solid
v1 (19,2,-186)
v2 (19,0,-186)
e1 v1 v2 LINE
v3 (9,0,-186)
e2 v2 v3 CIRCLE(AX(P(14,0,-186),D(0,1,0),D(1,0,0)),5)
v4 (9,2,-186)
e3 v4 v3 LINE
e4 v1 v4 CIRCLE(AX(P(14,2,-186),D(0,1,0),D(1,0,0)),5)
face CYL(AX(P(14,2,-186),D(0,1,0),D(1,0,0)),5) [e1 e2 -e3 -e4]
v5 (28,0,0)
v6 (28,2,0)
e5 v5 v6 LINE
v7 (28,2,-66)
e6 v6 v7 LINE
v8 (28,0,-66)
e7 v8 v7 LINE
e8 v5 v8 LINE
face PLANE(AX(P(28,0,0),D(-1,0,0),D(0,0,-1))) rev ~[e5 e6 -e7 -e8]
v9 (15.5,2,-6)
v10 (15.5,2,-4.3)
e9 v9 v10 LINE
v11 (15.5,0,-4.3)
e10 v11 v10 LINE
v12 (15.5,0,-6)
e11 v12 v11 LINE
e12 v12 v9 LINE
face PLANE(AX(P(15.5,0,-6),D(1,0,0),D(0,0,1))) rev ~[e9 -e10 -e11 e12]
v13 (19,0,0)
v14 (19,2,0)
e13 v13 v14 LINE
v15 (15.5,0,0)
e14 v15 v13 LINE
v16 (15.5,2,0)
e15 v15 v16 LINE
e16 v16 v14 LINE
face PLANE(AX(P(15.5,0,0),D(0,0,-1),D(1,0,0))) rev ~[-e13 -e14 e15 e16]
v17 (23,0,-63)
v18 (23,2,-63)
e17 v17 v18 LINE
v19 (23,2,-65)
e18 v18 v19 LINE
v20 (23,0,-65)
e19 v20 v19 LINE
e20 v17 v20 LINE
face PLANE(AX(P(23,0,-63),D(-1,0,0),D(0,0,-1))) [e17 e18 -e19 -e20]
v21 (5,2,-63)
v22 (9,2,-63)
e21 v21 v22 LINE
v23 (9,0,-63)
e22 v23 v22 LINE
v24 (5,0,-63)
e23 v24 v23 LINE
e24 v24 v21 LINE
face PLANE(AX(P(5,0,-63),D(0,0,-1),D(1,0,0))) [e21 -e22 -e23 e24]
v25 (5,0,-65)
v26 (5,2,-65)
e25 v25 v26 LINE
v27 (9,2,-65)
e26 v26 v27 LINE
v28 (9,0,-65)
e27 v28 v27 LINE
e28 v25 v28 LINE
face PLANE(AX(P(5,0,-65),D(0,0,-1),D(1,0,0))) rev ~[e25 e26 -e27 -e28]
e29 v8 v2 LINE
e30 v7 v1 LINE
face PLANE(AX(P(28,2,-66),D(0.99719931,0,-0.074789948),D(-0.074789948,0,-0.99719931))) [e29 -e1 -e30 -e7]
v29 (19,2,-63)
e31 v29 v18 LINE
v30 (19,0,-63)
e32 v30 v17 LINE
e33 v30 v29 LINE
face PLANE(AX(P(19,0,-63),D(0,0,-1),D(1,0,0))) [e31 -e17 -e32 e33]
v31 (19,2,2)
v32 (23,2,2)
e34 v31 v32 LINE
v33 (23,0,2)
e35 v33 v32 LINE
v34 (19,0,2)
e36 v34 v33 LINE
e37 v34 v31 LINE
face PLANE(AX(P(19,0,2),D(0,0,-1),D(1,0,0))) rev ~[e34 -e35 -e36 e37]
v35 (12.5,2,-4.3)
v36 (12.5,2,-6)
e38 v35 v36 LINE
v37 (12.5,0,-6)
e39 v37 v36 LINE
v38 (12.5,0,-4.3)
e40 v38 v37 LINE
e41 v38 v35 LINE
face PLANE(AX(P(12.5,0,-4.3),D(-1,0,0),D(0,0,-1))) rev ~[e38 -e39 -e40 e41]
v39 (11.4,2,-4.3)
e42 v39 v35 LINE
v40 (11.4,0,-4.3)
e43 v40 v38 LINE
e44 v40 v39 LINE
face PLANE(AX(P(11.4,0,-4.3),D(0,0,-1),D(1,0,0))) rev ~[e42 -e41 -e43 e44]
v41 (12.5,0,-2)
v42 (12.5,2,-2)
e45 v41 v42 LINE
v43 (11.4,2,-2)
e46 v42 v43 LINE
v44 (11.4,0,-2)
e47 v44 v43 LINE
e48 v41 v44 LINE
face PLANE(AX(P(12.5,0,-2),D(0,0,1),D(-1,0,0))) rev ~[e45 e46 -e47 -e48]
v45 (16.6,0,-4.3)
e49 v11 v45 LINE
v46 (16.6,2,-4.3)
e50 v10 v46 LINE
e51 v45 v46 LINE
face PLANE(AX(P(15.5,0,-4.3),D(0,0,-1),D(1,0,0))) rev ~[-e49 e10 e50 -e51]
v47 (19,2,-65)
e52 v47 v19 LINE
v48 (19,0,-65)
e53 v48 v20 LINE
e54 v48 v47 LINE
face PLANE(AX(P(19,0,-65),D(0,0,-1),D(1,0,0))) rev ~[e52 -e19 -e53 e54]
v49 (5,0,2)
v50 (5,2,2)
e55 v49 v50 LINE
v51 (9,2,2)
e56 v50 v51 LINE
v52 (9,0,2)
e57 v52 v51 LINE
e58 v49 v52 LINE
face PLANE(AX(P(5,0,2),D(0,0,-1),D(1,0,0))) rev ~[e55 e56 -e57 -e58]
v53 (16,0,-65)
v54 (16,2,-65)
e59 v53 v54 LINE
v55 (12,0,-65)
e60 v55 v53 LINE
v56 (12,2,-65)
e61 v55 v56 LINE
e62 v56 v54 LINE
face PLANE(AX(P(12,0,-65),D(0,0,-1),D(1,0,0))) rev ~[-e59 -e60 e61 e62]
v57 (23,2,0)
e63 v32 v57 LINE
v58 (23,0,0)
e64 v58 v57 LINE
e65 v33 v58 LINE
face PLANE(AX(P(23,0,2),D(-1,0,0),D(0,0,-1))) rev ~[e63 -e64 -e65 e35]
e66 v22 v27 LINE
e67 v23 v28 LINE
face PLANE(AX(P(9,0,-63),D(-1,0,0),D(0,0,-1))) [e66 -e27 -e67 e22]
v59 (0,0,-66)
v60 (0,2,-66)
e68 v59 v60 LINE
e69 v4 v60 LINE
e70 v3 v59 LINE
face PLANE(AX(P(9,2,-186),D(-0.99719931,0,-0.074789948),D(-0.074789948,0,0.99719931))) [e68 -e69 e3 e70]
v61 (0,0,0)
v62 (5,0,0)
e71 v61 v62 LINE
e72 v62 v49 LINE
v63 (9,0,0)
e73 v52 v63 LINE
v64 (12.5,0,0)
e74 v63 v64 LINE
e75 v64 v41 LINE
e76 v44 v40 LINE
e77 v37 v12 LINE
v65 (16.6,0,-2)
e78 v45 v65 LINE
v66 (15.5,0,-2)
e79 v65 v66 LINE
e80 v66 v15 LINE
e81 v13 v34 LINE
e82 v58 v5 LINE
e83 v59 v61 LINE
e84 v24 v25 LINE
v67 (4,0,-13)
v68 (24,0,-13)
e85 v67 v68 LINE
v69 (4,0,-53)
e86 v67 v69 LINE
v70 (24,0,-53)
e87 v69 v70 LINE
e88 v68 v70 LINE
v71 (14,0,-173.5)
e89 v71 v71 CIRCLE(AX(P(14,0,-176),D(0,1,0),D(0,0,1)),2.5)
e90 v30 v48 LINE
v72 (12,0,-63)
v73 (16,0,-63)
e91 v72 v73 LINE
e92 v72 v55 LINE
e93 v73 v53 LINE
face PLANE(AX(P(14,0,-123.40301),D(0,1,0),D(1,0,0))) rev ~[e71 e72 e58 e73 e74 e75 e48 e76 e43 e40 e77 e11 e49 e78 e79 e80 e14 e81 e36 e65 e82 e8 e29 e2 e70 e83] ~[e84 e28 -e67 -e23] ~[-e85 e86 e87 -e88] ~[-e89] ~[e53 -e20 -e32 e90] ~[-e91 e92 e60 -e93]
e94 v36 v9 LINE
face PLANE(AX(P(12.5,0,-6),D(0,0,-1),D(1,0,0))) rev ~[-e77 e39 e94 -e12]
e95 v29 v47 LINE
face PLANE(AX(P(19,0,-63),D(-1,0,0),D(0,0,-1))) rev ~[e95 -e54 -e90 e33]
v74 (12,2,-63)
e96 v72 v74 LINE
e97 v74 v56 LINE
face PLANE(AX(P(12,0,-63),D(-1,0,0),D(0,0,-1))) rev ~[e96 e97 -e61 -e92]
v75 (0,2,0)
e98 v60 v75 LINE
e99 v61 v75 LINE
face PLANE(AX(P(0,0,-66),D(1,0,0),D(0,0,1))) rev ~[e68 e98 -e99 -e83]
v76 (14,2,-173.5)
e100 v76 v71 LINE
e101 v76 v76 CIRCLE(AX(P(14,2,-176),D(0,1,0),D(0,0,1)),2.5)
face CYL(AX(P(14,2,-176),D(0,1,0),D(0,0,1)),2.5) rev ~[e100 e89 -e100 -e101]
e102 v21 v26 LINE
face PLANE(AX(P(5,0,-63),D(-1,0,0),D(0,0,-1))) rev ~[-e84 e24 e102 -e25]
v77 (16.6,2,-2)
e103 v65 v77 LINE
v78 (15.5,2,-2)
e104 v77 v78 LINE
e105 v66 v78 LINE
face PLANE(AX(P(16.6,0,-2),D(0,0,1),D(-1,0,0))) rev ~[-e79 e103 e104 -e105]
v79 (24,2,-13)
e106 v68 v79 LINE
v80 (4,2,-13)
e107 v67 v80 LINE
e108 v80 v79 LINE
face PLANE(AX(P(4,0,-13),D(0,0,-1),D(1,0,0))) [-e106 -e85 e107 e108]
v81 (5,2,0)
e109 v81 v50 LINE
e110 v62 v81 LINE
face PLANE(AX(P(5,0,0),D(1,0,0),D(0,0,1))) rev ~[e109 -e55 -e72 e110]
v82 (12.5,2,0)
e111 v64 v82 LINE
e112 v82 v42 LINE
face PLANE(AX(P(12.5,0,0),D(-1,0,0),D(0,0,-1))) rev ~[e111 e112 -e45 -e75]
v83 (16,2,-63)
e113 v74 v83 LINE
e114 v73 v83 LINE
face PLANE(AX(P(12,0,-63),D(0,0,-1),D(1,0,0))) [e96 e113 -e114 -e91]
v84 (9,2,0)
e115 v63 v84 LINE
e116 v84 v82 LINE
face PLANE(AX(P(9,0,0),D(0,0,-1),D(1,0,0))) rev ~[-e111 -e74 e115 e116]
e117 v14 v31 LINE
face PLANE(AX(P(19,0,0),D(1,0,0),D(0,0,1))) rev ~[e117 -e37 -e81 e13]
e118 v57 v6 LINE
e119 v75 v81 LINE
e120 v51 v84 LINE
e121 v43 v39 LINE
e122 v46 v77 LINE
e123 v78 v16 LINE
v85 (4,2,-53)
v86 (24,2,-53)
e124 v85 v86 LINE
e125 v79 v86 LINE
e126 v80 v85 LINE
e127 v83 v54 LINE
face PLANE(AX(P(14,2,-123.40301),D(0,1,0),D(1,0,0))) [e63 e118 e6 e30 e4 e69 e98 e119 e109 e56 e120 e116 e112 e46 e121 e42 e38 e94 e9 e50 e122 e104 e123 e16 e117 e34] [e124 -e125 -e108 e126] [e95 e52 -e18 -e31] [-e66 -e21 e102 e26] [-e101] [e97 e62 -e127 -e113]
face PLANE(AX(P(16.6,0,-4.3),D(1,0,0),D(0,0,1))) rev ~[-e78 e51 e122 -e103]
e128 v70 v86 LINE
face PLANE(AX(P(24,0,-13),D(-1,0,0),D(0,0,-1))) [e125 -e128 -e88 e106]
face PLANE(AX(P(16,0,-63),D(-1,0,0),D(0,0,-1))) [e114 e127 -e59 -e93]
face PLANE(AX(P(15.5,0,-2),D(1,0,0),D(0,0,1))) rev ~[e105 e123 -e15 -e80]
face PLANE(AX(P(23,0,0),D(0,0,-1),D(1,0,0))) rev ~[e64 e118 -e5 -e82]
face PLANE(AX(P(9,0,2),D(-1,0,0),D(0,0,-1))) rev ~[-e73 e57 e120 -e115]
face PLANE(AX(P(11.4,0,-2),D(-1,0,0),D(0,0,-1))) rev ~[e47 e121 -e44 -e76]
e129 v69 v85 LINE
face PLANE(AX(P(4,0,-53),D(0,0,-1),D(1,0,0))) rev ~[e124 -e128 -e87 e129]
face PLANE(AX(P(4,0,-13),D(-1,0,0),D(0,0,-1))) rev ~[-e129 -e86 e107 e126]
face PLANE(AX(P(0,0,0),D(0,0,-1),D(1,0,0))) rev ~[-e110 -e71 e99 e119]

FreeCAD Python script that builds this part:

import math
import FreeCAD as App
import Part
import Sketcher

V = App.Vector
Q = App.Units.Quantity


def add_polygon(sketch, points):
    """Adds a closed chain of lines whose ends are joined by coincident constraints."""
    first, n = sketch.GeometryCount, len(points)
    for a, b in zip(points, points[1:] + points[:1]):
        sketch.addGeometry(Part.LineSegment(App.Vector(*a, 0), App.Vector(*b, 0)), False)
    for i in range(n):
        sketch.addConstraint(Sketcher.Constraint("Coincident", first + i, 2, first + (i + 1) % n, 1))

doc = App.newDocument("Part")
params = doc.addObject("Spreadsheet::Sheet", "Params")
for row, (alias, value) in enumerate([
    ("sketch1_width", "5 mm"),
    ("sketch1_width2", "4 mm"),
    ("sketch1_width3", "3 mm"),
    ("sketch1_width4", "28 mm"),
    ("sketch1_width5", "20 mm"),
    ("pad1_length", "2 mm"),
    ("sketch2_diameter", "5 mm"),
    ("sketch2_radius", "5 mm"),
    ("sketch2_width", "28 mm"),
    ("pad2_length", "2 mm"),
], start=1):
    params.set(f"A{row}", alias)
    params.set(f"B{row}", "=" + value)
    params.setAlias(f"B{row}", alias)

body = doc.addObject("PartDesign::Body", "Body")

# Sketch on XZ plane
sketch1 = body.newObject("Sketcher::SketchObject", "Sketch")
sketch1.AttachmentSupport = (doc.getObject("XZ_Plane"), [""])
sketch1.MapMode = "FlatFace"
add_polygon(sketch1, [(0, 0), (5, 0), (5, 2), (9, 2), (9, 0), (12.5, 0), (12.5, -2), (11.4, -2), (11.4, -4.3), (12.5, -4.3), (12.5, -6), (15.5, -6), (15.5, -4.3), (16.6, -4.3), (16.6, -2), (15.5, -2), (15.5, 0), (19, 0), (19, 2), (23, 2), (23, 0), (28, 0), (28, -66), (0, -66)])  # lines 0-23
add_polygon(sketch1, [(24, -13), (4, -13), (4, -53), (24, -53)])  # lines 24-27
add_polygon(sketch1, [(9, -63), (5, -63), (5, -65), (9, -65)])  # lines 28-31
add_polygon(sketch1, [(16, -63), (12, -63), (12, -65), (16, -65)])  # lines 32-35
add_polygon(sketch1, [(23, -63), (19, -63), (19, -65), (23, -65)])  # lines 36-39
sketch1.addConstraint(Sketcher.Constraint("Horizontal", 0))
sketch1.addConstraint(Sketcher.Constraint("Vertical", 1))
sketch1.addConstraint(Sketcher.Constraint("Horizontal", 2))
sketch1.addConstraint(Sketcher.Constraint("Vertical", 3))
sketch1.addConstraint(Sketcher.Constraint("Horizontal", 4))
sketch1.addConstraint(Sketcher.Constraint("Vertical", 5))
sketch1.addConstraint(Sketcher.Constraint("Horizontal", 6))
sketch1.addConstraint(Sketcher.Constraint("Vertical", 7))
sketch1.addConstraint(Sketcher.Constraint("Horizontal", 8))
sketch1.addConstraint(Sketcher.Constraint("Vertical", 9))
sketch1.addConstraint(Sketcher.Constraint("Horizontal", 10))
sketch1.addConstraint(Sketcher.Constraint("Vertical", 11))
sketch1.addConstraint(Sketcher.Constraint("Horizontal", 12))
sketch1.addConstraint(Sketcher.Constraint("Vertical", 13))
sketch1.addConstraint(Sketcher.Constraint("Horizontal", 14))
sketch1.addConstraint(Sketcher.Constraint("Vertical", 15))
sketch1.addConstraint(Sketcher.Constraint("Horizontal", 16))
sketch1.addConstraint(Sketcher.Constraint("Vertical", 17))
sketch1.addConstraint(Sketcher.Constraint("Horizontal", 18))
sketch1.addConstraint(Sketcher.Constraint("Vertical", 19))
sketch1.addConstraint(Sketcher.Constraint("Horizontal", 20))
sketch1.addConstraint(Sketcher.Constraint("Vertical", 21))
sketch1.addConstraint(Sketcher.Constraint("Horizontal", 22))
sketch1.addConstraint(Sketcher.Constraint("Vertical", 23))
sketch1.addConstraint(Sketcher.Constraint("Horizontal", 24))
sketch1.addConstraint(Sketcher.Constraint("Vertical", 25))
sketch1.addConstraint(Sketcher.Constraint("Horizontal", 26))
sketch1.addConstraint(Sketcher.Constraint("Vertical", 27))
sketch1.addConstraint(Sketcher.Constraint("Horizontal", 28))
sketch1.addConstraint(Sketcher.Constraint("Vertical", 29))
sketch1.addConstraint(Sketcher.Constraint("Horizontal", 30))
sketch1.addConstraint(Sketcher.Constraint("Vertical", 31))
sketch1.addConstraint(Sketcher.Constraint("Horizontal", 32))
sketch1.addConstraint(Sketcher.Constraint("Vertical", 33))
sketch1.addConstraint(Sketcher.Constraint("Horizontal", 34))
sketch1.addConstraint(Sketcher.Constraint("Vertical", 35))
sketch1.addConstraint(Sketcher.Constraint("Horizontal", 36))
sketch1.addConstraint(Sketcher.Constraint("Vertical", 37))
sketch1.addConstraint(Sketcher.Constraint("Horizontal", 38))
sketch1.addConstraint(Sketcher.Constraint("Vertical", 39))
sketch1.addConstraint(Sketcher.Constraint("Coincident", 23, 2, -1, 1))
sketch1.addConstraint(Sketcher.Constraint("PointOnObject", 3, 2, -1))
sketch1.addConstraint(Sketcher.Constraint("PointOnObject", 15, 2, -1))
sketch1.addConstraint(Sketcher.Constraint("PointOnObject", 19, 2, -1))
sketch1.addConstraint(Sketcher.Constraint("Horizontal", 8, 2, 11, 2))
sketch1.addConstraint(Sketcher.Constraint("Horizontal", 6, 2, 13, 2))
sketch1.addConstraint(Sketcher.Constraint("Horizontal", 2, 2, 17, 2))
sketch1.addConstraint(Sketcher.Constraint("Horizontal", 31, 2, 32, 2))
sketch1.addConstraint(Sketcher.Constraint("Horizontal", 30, 2, 33, 2))
sketch1.addConstraint(Sketcher.Constraint("Horizontal", 35, 2, 36, 2))
sketch1.addConstraint(Sketcher.Constraint("Horizontal", 34, 2, 37, 2))
sketch1.addConstraint(Sketcher.Constraint("Vertical", 5, 2, 8, 2))
sketch1.addConstraint(Sketcher.Constraint("Vertical", 11, 2, 14, 2))
sketch1.addConstraint(Sketcher.Constraint("Vertical", 1, 2, 28, 2))
sketch1.addConstraint(Sketcher.Constraint("Vertical", 3, 2, 30, 2))
sketch1.addConstraint(Sketcher.Constraint("Vertical", 17, 2, 36, 2))
sketch1.addConstraint(Sketcher.Constraint("Vertical", 19, 2, 38, 2))
sketch1.addConstraint(Sketcher.Constraint("Equal", 8, 12))
sketch1.addConstraint(Sketcher.Constraint("Equal", 4, 16))
sketch1.addConstraint(Sketcher.Constraint("Equal", 2, 18))
sketch1.addConstraint(Sketcher.Constraint("Equal", 0, 20))
sketch1.addConstraint(Sketcher.Constraint("Equal", 30, 32))
sketch1.addConstraint(Sketcher.Constraint("Equal", 3, 5))
sketch1.addConstraint(Sketcher.Constraint("Equal", 19, 29))
sketch1.addConstraint(Sketcher.Constraint("DistanceX", 0, 1, 0, 2, Q("5 mm")))
sketch1.addConstraint(Sketcher.Constraint("DistanceX", 2, 1, 2, 2, Q("4 mm")))
sketch1.addConstraint(Sketcher.Constraint("DistanceX", 10, 1, 10, 2, Q("3 mm")))
sketch1.addConstraint(Sketcher.Constraint("DistanceX", 22, 2, 22, 1, Q("28 mm")))
sketch1.addConstraint(Sketcher.Constraint("DistanceX", 24, 2, 24, 1, Q("20 mm")))
sketch1.addConstraint(Sketcher.Constraint("DistanceY", 1, 1, 1, 2, Q("2 mm")))
sketch1.addConstraint(Sketcher.Constraint("DistanceY", 21, 2, 21, 1, Q("66 mm")))
sketch1.addConstraint(Sketcher.Constraint("DistanceY", 25, 2, 25, 1, Q("40 mm")))
sketch1.addConstraint(Sketcher.Constraint("DistanceX", 6, 2, 6, 1, Q("1.1 mm")))
sketch1.addConstraint(Sketcher.Constraint("DistanceY", 7, 2, 7, 1, Q("2.3 mm")))
sketch1.addConstraint(Sketcher.Constraint("DistanceY", 9, 2, 9, 1, Q("1.7 mm")))
sketch1.addConstraint(Sketcher.Constraint("DistanceX", -1, 1, 24, 2, Q("4 mm")))
sketch1.addConstraint(Sketcher.Constraint("DistanceY", 24, 2, -1, 1, Q("13 mm")))
sketch1.addConstraint(Sketcher.Constraint("DistanceY", 28, 2, -1, 1, Q("63 mm")))
sketch1.addConstraint(Sketcher.Constraint("DistanceX", -1, 1, 32, 2, Q("12 mm")))
sketch1.setExpression("Constraints[104]", "Params.sketch1_width")
sketch1.setExpression("Constraints[105]", "Params.sketch1_width2")
sketch1.setExpression("Constraints[106]", "Params.sketch1_width3")
sketch1.setExpression("Constraints[107]", "Params.sketch1_width4")
sketch1.setExpression("Constraints[108]", "Params.sketch1_width5")
pad1 = body.newObject("PartDesign::Pad", "Pad")
pad1.Profile = sketch1
pad1.setExpression("Length", "Params.pad1_length")
pad1.Reversed = True

# Sketch on XZ plane
sketch2 = body.newObject("Sketcher::SketchObject", "Sketch001")
sketch2.AttachmentSupport = (doc.getObject("XZ_Plane"), [""])
sketch2.MapMode = "FlatFace"
sketch2.AttachmentOffset = App.Placement(V(0, 0, -2), App.Rotation())
sketch2.addGeometry(Part.LineSegment(V(28, -66, 0), V(19, -186, 0)), False)
sketch2.addGeometry(Part.ArcOfCircle(Part.Circle(V(14, -186, 0), V(0, 0, 1), 5), math.radians(180), math.radians(360)), False)
sketch2.addGeometry(Part.LineSegment(V(9, -186, 0), V(0, -66, 0)), False)
sketch2.addGeometry(Part.LineSegment(V(0, -66, 0), V(28, -66, 0)), False)
sketch2.addGeometry(Part.Circle(V(14, -176, 0), V(0, 0, 1), 2.5), False)
sketch2.addConstraint(Sketcher.Constraint("Coincident", 0, 2, 1, 2))
sketch2.addConstraint(Sketcher.Constraint("Coincident", 1, 1, 2, 1))
sketch2.addConstraint(Sketcher.Constraint("Coincident", 2, 2, 3, 1))
sketch2.addConstraint(Sketcher.Constraint("Coincident", 3, 2, 0, 1))
sketch2.addConstraint(Sketcher.Constraint("Horizontal", 3))
sketch2.addConstraint(Sketcher.Constraint("PointOnObject", 2, 2, -2))
sketch2.addConstraint(Sketcher.Constraint("Horizontal", 1, 3, 0, 2))
sketch2.addConstraint(Sketcher.Constraint("Horizontal", 0, 2, 1, 1))
sketch2.addConstraint(Sketcher.Constraint("Vertical", 1, 3, 4, 3))
sketch2.addConstraint(Sketcher.Constraint("Equal", 0, 2))
sketch2.addConstraint(Sketcher.Constraint("Diameter", 4, Q("5 mm")))
sketch2.addConstraint(Sketcher.Constraint("Radius", 1, Q("5 mm")))
sketch2.addConstraint(Sketcher.Constraint("DistanceX", 3, 1, 3, 2, Q("28 mm")))
sketch2.addConstraint(Sketcher.Constraint("DistanceY", 1, 3, -1, 1, Q("186 mm")))
sketch2.addConstraint(Sketcher.Constraint("DistanceY", 4, 3, -1, 1, Q("176 mm")))
sketch2.addConstraint(Sketcher.Constraint("DistanceY", 2, 2, -1, 1, Q("66 mm")))
sketch2.setExpression("Constraints[10]", "Params.sketch2_diameter")
sketch2.setExpression("Constraints[11]", "Params.sketch2_radius")
sketch2.setExpression("Constraints[12]", "Params.sketch2_width")
pad2 = body.newObject("PartDesign::Pad", "Pad001")
pad2.Profile = sketch2
pad2.setExpression("Length", "Params.pad2_length")

doc.recompute()
